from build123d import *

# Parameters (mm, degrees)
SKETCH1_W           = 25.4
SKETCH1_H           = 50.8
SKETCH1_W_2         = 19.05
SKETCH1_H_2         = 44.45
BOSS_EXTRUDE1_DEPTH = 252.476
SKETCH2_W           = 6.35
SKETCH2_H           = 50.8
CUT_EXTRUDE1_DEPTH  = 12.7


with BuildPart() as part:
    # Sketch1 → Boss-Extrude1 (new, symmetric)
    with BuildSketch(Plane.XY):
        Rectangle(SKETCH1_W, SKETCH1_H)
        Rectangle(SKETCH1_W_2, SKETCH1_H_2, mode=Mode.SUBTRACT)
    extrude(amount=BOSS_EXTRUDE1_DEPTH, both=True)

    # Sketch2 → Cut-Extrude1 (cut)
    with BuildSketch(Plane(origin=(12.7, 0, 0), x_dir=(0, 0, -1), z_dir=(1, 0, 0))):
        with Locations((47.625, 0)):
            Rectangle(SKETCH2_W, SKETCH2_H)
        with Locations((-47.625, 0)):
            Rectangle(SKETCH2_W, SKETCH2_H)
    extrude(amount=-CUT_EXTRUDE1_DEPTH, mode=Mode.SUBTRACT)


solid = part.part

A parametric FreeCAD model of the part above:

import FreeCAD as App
import Part
import Sketcher
from FreeCAD import Vector
Q = App.Units.Quantity


def add_polygon(sketch, points):
    """Adds a closed chain of lines whose ends are joined by coincident constraints."""
    first, n = sketch.GeometryCount, len(points)
    for a, b in zip(points, points[1:] + points[:1]):
        sketch.addGeometry(Part.LineSegment(App.Vector(*a, 0), App.Vector(*b, 0)), False)
    for i in range(n):
        sketch.addConstraint(Sketcher.Constraint("Coincident", first + i, 2, first + (i + 1) % n, 1))

doc = App.newDocument("Part")
body = doc.addObject("PartDesign::Body", "Body")

# Sketch on XY plane
sketch1 = doc.addObject("Sketcher::SketchObject", "Sketch")
body.addObject(sketch1)
sketch1.AttachmentSupport = (doc.XY_Plane, [""])
sketch1.MapMode = "FlatFace"
add_polygon(sketch1, [(-13, 25), (-13, -25), (13, -25), (13, 25)])  # lines 0-3
add_polygon(sketch1, [(10, -22), (-10, -22), (-10, 22), (10, 22)])  # lines 4-7
sketch1.addConstraint([
    Sketcher.Constraint("Vertical", 0),
    Sketcher.Constraint("Horizontal", 1),
    Sketcher.Constraint("Vertical", 2),
    Sketcher.Constraint("Horizontal", 3),
    Sketcher.Constraint("Horizontal", 4),
    Sketcher.Constraint("Vertical", 5),
    Sketcher.Constraint("Horizontal", 6),
    Sketcher.Constraint("Vertical", 7),
    Sketcher.Constraint("Symmetric", 0, 2, 2, 2, -1, 1),
    Sketcher.Constraint("Symmetric", 4, 2, 6, 2, -1, 1),
    Sketcher.Constraint("DistanceX", 1, 1, 1, 2, Q("1 in")),
    Sketcher.Constraint("DistanceY", 0, 2, 0, 1, Q("2 in")),
    Sketcher.Constraint("DistanceX", 4, 2, 4, 1, Q("0.75 in")),
    Sketcher.Constraint("DistanceY", 5, 1, 5, 2, Q("1.75 in")),
])
pad1 = doc.addObject("PartDesign::Pad", "Pad")
body.addObject(pad1)
pad1.Profile = sketch1
pad1.Length = Q("19.88 in")
pad1.Midplane = True

# Sketch on YZ plane
sketch2 = doc.addObject("Sketcher::SketchObject", "Sketch001")
body.addObject(sketch2)
sketch2.AttachmentSupport = (doc.YZ_Plane, [""])
sketch2.MapMode = "FlatFace"
sketch2.AttachmentOffset = App.Placement(Vector(0, 0, 0.5 * 25.4), App.Rotation())
add_polygon(sketch2, [(25, -44), (-25, -44), (-25, -51), (25, -51)])  # lines 0-3
add_polygon(sketch2, [(25, 51), (-25, 51), (-25, 44), (25, 44)])  # lines 4-7
sketch2.addConstraint([
    Sketcher.Constraint("Horizontal", 0),
    Sketcher.Constraint("Vertical", 1),
    Sketcher.Constraint("Horizontal", 2),
    Sketcher.Constraint("Vertical", 3),
    Sketcher.Constraint("Horizontal", 4),
    Sketcher.Constraint("Vertical", 5),
    Sketcher.Constraint("Horizontal", 6),
    Sketcher.Constraint("Vertical", 7),
    Sketcher.Constraint("Symmetric", 2, 2, 4, 2, -1, 1),
    Sketcher.Constraint("Symmetric", 0, 2, 6, 2, -1, 1),
    Sketcher.Constraint("Vertical", 1, 2, 4, 2),
    Sketcher.Constraint("DistanceX", 0, 2, 0, 1, Q("2 in")),
    Sketcher.Constraint("DistanceY", 1, 2, -1, 1, Q("2 in")),
    Sketcher.Constraint("DistanceY", 1, 2, 1, 1, Q("0.25 in")),
])
pocket1 = doc.addObject("PartDesign::Pocket", "Pocket")
body.addObject(pocket1)
pocket1.Profile = sketch2
pocket1.Length = Q("0.5 in")

doc.recompute()
